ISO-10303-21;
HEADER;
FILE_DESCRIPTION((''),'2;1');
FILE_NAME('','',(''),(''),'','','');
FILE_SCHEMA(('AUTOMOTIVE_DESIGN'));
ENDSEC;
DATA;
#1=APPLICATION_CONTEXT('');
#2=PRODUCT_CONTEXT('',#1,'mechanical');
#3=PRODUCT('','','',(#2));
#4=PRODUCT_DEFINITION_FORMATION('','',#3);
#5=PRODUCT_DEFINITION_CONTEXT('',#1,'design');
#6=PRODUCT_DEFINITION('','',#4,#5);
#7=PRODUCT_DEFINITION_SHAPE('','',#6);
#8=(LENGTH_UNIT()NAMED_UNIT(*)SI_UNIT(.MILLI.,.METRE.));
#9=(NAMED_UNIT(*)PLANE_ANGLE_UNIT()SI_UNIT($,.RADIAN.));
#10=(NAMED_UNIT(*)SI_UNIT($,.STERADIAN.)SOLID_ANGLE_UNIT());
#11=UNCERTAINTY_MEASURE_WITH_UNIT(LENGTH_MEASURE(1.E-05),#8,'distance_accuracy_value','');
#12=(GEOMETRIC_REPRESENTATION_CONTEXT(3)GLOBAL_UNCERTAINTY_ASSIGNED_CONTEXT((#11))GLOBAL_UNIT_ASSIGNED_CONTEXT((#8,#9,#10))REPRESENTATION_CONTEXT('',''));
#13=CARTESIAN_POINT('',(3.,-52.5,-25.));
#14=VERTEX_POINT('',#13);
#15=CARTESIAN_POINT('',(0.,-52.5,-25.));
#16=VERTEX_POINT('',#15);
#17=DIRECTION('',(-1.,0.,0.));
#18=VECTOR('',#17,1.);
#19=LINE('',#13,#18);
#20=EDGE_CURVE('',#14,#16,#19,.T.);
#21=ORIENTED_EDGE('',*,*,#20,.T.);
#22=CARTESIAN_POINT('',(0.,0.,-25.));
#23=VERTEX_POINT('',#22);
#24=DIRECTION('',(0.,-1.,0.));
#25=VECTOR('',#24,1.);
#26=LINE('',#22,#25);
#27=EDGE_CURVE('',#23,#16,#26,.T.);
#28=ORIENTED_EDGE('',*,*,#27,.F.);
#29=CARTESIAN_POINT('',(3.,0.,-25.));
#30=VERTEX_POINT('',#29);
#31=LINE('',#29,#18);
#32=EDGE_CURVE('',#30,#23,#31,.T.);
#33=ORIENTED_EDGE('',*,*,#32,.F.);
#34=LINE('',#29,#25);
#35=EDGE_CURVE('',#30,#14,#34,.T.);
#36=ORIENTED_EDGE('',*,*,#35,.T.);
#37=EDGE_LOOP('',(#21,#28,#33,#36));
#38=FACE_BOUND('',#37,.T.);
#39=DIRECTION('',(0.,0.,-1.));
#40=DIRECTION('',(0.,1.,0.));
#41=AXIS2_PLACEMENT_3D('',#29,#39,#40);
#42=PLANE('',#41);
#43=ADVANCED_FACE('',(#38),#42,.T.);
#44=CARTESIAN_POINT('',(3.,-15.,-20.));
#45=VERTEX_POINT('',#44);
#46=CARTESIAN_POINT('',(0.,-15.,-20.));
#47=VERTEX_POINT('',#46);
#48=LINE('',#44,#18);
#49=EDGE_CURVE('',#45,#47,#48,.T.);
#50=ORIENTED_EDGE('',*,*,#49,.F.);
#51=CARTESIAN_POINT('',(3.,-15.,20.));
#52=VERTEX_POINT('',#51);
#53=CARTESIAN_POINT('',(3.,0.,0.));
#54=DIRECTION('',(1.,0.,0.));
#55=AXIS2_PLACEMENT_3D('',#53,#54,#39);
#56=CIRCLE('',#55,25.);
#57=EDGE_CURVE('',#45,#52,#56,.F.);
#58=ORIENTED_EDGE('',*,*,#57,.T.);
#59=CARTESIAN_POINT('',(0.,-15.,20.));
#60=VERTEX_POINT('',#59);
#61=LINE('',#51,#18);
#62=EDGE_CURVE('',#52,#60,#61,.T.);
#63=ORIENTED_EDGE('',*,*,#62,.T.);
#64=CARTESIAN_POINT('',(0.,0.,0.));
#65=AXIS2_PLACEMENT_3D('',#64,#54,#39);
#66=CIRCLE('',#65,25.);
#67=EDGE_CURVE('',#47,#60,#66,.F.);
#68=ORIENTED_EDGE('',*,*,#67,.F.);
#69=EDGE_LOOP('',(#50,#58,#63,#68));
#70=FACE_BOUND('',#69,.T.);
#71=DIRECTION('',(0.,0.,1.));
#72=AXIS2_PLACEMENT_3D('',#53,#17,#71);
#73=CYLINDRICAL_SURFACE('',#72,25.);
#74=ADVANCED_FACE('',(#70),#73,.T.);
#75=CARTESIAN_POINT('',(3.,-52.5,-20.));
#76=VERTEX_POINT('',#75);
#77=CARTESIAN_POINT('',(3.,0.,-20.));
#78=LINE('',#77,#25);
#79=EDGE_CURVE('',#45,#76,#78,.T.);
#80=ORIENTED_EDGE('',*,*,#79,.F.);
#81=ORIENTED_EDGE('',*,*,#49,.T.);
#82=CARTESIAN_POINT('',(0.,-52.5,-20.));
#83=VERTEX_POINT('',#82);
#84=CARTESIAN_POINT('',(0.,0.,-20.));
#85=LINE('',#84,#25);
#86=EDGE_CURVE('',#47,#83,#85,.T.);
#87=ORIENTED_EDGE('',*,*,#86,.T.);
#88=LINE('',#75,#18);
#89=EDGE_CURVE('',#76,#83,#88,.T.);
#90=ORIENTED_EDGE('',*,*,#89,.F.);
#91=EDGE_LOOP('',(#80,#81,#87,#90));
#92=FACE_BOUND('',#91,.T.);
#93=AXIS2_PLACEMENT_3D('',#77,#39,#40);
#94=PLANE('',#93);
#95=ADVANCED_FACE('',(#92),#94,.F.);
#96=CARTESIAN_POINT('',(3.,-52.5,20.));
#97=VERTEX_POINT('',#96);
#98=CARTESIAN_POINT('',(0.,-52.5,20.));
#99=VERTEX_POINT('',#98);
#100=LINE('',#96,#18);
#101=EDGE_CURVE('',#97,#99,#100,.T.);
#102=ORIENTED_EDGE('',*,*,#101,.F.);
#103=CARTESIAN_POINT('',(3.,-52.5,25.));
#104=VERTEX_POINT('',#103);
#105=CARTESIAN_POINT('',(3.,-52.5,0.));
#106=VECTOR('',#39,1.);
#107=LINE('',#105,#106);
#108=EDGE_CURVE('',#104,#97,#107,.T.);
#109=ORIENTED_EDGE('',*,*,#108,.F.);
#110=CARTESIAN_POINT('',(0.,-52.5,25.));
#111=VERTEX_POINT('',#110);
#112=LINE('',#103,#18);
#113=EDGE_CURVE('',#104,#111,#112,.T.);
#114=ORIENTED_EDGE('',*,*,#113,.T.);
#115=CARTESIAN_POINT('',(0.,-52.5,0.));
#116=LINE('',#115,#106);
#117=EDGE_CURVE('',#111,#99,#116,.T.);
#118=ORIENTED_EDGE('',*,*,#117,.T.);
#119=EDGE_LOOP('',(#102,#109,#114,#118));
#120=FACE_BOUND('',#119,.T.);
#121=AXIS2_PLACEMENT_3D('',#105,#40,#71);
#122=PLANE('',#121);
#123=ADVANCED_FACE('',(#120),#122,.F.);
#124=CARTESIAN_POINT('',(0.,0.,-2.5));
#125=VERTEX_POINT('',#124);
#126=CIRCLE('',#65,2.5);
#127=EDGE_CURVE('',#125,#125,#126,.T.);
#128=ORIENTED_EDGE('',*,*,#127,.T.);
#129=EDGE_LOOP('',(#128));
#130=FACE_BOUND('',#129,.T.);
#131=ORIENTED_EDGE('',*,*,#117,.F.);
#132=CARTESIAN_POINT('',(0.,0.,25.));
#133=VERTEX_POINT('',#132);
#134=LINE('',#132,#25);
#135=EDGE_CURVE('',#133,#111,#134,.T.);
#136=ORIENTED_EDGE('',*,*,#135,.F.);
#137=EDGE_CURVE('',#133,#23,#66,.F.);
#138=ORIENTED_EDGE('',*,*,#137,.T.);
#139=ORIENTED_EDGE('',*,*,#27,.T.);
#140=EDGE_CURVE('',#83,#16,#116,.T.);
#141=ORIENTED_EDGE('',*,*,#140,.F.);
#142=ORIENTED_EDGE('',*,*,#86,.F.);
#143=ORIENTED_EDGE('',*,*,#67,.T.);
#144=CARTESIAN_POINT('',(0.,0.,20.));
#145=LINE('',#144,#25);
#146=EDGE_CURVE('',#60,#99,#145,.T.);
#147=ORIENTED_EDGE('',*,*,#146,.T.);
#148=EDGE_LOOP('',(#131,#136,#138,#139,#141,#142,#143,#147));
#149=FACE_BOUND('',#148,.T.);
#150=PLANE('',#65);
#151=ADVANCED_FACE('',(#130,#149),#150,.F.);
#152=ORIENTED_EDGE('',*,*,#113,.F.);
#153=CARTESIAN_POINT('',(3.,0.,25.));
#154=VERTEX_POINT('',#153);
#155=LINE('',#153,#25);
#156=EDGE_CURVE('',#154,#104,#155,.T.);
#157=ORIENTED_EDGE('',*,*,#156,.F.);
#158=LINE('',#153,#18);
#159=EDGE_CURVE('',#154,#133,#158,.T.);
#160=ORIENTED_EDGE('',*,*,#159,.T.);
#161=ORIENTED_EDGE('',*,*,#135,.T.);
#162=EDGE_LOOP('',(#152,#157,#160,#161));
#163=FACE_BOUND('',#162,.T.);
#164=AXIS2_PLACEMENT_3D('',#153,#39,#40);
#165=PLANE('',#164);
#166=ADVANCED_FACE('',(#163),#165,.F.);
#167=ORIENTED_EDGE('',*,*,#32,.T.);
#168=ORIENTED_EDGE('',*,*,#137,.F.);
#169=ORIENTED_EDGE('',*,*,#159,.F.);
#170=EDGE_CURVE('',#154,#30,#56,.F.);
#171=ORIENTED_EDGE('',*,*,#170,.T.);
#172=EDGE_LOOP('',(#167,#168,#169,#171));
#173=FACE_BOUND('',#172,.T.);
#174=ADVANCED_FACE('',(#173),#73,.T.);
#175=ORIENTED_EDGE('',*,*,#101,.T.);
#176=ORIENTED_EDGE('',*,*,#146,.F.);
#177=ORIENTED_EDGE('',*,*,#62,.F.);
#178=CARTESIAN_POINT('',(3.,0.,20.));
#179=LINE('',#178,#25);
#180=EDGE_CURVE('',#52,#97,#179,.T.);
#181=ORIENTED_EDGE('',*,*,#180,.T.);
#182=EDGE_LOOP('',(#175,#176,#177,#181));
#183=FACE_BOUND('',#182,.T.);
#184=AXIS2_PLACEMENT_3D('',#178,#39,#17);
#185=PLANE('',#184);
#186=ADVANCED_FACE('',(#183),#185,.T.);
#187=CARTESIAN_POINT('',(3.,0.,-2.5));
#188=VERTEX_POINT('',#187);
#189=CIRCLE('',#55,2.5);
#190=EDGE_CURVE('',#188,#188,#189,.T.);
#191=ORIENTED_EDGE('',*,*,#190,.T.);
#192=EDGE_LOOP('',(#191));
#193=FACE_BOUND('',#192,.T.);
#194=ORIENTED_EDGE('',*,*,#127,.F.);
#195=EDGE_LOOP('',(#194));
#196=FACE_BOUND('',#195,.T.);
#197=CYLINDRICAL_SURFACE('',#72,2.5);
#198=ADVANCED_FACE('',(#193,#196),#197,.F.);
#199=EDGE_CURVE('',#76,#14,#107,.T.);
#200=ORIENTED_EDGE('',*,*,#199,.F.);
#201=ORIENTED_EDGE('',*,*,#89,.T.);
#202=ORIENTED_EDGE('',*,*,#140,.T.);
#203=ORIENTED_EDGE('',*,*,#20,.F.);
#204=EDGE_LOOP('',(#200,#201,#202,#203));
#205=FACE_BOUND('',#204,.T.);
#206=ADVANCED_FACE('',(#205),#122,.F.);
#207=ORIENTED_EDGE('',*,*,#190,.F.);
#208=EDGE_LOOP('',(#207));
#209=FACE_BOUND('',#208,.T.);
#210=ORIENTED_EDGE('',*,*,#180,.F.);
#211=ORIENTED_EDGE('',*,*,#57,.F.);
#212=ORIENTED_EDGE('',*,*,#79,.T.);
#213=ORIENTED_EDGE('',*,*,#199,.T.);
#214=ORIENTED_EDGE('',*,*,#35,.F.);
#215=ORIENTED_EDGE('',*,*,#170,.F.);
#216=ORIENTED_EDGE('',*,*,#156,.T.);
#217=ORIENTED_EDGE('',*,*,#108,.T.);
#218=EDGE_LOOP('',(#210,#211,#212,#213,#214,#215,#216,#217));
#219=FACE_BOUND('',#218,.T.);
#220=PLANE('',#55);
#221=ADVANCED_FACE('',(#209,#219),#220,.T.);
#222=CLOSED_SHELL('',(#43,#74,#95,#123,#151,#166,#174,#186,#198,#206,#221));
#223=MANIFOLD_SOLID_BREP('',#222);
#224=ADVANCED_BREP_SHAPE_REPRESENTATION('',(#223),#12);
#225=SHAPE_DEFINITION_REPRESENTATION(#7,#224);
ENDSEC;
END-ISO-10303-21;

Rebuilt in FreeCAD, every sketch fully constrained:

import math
import FreeCAD as App
import Part
import Sketcher

V = App.Vector

doc = App.newDocument("Part")
body = doc.addObject("PartDesign::Body", "Body")

sketch1 = doc.addObject("Sketcher::SketchObject", "Sketch")
body.addObject(sketch1)
sketch1.AttachmentSupport = (doc.YZ_Plane, [""])
sketch1.MapMode = "FlatFace"
sketch1.addGeometry(Part.LineSegment(V(0, 25, 0), V(-52.5, 25, 0)), False)
sketch1.addGeometry(Part.LineSegment(V(-52.5, 25, 0), V(-52.5, 20, 0)), False)
sketch1.addGeometry(Part.LineSegment(V(-52.5, 20, 0), V(-15, 20, 0)), False)
sketch1.addGeometry(Part.ArcOfCircle(Part.Circle(V(0, 0, 0), V(0, 0, 1), 25), math.radians(126.869898), math.radians(233.130102)), False)
sketch1.addGeometry(Part.LineSegment(V(-15, -20, 0), V(-52.5, -20, 0)), False)
sketch1.addGeometry(Part.LineSegment(V(-52.5, -20, 0), V(-52.5, -25, 0)), False)
sketch1.addGeometry(Part.LineSegment(V(-52.5, -25, 0), V(0, -25, 0)), False)
sketch1.addGeometry(Part.ArcOfCircle(Part.Circle(V(0, 0, 0), V(0, 0, 1), 25), math.radians(-90), math.radians(90)), False)
sketch1.addGeometry(Part.Circle(V(0, 0, 0), V(0, 0, 1), 2.5), False)
sketch1.addConstraint(Sketcher.Constraint("Coincident", 0, 2, 1, 1))
sketch1.addConstraint(Sketcher.Constraint("Coincident", 1, 2, 2, 1))
sketch1.addConstraint(Sketcher.Constraint("Coincident", 2, 2, 3, 1))
sketch1.addConstraint(Sketcher.Constraint("Coincident", 3, 2, 4, 1))
sketch1.addConstraint(Sketcher.Constraint("Coincident", 4, 2, 5, 1))
sketch1.addConstraint(Sketcher.Constraint("Coincident", 5, 2, 6, 1))
sketch1.addConstraint(Sketcher.Constraint("Tangent", 6, 2, 7, 1))
sketch1.addConstraint(Sketcher.Constraint("Tangent", 7, 2, 0, 1))
sketch1.addConstraint(Sketcher.Constraint("Horizontal", 0))
sketch1.addConstraint(Sketcher.Constraint("Vertical", 1))
sketch1.addConstraint(Sketcher.Constraint("Horizontal", 2))
sketch1.addConstraint(Sketcher.Constraint("Horizontal", 4))
sketch1.addConstraint(Sketcher.Constraint("Vertical", 5))
sketch1.addConstraint(Sketcher.Constraint("Horizontal", 6))
sketch1.addConstraint(Sketcher.Constraint("Coincident", 3, 3, -1, 1))
sketch1.addConstraint(Sketcher.Constraint("Coincident", 7, 3, -1, 1))
sketch1.addConstraint(Sketcher.Constraint("Coincident", 8, 3, -1, 1))
sketch1.addConstraint(Sketcher.Constraint("Equal", 3, 7))
sketch1.addConstraint(Sketcher.Constraint("Symmetric", 1, 2, 4, 2, -1))
sketch1.addConstraint(Sketcher.Constraint("Diameter", 8, 5.0))
sketch1.addConstraint(Sketcher.Constraint("Radius", 3, 25.0))
sketch1.addConstraint(Sketcher.Constraint("DistanceY", 1, 2, 1, 1, 5.0))
sketch1.addConstraint(Sketcher.Constraint("DistanceX", 0, 2, 0, 1, 52.5))
pad1 = doc.addObject("PartDesign::Pad", "Pad")
body.addObject(pad1)
pad1.Profile = sketch1
pad1.Length = 3

doc.recompute()
